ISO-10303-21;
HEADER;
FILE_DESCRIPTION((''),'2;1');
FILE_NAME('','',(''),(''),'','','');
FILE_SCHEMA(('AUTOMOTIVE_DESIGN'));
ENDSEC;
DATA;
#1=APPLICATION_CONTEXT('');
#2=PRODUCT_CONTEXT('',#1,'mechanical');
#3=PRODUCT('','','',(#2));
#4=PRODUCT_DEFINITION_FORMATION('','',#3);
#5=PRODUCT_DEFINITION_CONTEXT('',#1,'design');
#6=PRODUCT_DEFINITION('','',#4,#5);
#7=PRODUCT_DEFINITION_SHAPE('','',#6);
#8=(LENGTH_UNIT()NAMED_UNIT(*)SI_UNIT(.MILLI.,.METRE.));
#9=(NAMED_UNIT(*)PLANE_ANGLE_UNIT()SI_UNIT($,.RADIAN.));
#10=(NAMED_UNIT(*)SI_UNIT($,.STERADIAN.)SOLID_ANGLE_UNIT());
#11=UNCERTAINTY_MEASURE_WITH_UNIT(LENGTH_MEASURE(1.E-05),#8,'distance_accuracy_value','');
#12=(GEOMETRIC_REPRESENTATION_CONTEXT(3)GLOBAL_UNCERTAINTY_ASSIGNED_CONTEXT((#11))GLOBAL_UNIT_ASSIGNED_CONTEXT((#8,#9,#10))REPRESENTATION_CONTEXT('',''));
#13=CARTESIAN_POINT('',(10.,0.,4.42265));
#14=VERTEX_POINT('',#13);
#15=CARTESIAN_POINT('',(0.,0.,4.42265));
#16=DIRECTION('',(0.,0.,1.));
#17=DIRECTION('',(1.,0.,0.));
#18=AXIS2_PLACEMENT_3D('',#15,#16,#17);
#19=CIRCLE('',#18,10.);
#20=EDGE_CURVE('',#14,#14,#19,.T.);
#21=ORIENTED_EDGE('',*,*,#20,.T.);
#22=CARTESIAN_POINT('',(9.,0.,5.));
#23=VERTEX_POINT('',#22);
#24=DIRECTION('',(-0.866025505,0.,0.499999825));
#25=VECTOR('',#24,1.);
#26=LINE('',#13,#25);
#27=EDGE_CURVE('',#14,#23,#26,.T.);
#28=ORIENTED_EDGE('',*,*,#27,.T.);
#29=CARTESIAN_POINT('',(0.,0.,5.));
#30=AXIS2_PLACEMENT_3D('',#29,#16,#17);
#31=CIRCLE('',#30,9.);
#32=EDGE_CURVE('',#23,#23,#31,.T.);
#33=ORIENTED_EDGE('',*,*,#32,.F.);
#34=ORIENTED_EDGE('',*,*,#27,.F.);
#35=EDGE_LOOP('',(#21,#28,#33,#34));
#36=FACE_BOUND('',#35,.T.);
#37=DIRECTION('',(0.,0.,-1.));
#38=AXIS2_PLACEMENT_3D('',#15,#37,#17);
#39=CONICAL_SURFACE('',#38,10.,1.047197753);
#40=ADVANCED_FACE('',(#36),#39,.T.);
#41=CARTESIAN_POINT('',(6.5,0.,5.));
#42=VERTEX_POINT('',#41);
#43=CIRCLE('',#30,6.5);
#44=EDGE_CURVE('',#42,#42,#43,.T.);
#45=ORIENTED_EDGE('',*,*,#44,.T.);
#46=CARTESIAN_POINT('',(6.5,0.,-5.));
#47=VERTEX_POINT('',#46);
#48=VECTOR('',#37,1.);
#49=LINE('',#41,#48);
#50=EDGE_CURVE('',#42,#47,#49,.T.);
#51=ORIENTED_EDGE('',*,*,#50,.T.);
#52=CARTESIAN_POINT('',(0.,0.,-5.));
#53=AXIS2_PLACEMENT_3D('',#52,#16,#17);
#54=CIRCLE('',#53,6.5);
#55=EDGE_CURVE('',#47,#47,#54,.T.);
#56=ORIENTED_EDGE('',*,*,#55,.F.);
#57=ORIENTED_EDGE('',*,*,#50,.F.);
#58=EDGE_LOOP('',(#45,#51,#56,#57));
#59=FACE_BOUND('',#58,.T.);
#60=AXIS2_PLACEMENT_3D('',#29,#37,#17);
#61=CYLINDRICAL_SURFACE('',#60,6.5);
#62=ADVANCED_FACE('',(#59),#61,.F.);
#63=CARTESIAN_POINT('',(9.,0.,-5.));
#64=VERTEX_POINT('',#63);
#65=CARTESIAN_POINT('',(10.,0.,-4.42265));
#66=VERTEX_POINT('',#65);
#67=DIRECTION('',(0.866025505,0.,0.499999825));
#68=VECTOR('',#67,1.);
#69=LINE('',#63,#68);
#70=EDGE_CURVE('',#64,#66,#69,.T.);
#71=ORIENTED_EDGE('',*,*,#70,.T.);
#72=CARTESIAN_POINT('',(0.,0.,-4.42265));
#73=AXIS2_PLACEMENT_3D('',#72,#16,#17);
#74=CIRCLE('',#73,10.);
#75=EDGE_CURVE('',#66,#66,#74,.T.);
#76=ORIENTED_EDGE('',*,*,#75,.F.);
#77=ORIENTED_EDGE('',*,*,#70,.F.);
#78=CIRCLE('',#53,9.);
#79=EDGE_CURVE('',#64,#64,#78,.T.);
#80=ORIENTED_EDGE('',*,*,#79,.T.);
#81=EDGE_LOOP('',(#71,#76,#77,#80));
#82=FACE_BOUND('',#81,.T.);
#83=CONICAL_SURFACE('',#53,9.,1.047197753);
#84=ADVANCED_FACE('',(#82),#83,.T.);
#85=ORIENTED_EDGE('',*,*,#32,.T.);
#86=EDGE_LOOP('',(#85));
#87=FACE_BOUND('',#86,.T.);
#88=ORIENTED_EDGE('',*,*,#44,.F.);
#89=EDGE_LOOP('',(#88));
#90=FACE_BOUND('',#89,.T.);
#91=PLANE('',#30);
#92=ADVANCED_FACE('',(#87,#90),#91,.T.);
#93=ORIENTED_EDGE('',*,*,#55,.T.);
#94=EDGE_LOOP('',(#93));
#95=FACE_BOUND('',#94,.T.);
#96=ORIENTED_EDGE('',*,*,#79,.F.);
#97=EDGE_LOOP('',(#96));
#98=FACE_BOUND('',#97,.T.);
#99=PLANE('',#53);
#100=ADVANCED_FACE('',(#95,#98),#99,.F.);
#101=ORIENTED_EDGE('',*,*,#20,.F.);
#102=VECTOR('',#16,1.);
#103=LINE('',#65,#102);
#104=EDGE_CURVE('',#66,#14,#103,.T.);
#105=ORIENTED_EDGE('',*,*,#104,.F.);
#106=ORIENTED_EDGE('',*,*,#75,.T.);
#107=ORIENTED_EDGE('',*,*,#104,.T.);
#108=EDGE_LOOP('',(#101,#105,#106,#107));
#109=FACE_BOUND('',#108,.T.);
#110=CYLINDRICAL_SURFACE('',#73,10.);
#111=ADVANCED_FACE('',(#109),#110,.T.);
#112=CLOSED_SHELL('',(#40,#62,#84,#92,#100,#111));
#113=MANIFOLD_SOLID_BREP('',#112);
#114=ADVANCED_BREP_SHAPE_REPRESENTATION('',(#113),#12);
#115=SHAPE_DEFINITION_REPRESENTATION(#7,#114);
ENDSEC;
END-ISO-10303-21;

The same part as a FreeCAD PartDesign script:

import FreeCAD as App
import Part
import Sketcher
from FreeCAD import Vector
Q = App.Units.Quantity


def add_polygon(sketch, points):
    """Adds a closed chain of lines whose ends are joined by coincident constraints."""
    first, n = sketch.GeometryCount, len(points)
    for a, b in zip(points, points[1:] + points[:1]):
        sketch.addGeometry(Part.LineSegment(App.Vector(*a, 0), App.Vector(*b, 0)), False)
    for i in range(n):
        sketch.addConstraint(Sketcher.Constraint("Coincident", first + i, 2, first + (i + 1) % n, 1))

doc = App.newDocument("Part")
body = doc.addObject("PartDesign::Body", "Body")

# Sketch on XZ plane
sketch1 = body.newObject("Sketcher::SketchObject", "Sketch")
sketch1.AttachmentSupport = (doc.getObject("XZ_Plane"), [""])
sketch1.MapMode = "FlatFace"
add_polygon(sketch1, [(6.5, 5), (6.5, -5), (9, -5), (10, -4.4), (10, 4.4), (9, 5)])  # lines 0-5
sketch1.addConstraint([
    Sketcher.Constraint("Vertical", 0),
    Sketcher.Constraint("Horizontal", 1),
    Sketcher.Constraint("Vertical", 3),
    Sketcher.Constraint("Horizontal", 5),
    Sketcher.Constraint("Symmetric", 1, 2, 4, 2, -1),
    Sketcher.Constraint("Equal", 2, 4),
    Sketcher.Constraint("DistanceY", 0, 2, 0, 1, 10.0),
    Sketcher.Constraint("Angle", 2, Q("29.999988 deg")),
    Sketcher.Constraint("DistanceX", 1, 1, 1, 2, 2.5),
    Sketcher.Constraint("DistanceX", -1, 1, 1, 2, 9.0),
    Sketcher.Constraint("DistanceX", -1, 1, 2, 2, 10.0),
])
revolution = body.newObject("PartDesign::Revolution", "Revolution")
revolution.Profile = sketch1
revolution.ReferenceAxis = (sketch1, ["V_Axis"])
revolution.Angle = 360

doc.recompute()
